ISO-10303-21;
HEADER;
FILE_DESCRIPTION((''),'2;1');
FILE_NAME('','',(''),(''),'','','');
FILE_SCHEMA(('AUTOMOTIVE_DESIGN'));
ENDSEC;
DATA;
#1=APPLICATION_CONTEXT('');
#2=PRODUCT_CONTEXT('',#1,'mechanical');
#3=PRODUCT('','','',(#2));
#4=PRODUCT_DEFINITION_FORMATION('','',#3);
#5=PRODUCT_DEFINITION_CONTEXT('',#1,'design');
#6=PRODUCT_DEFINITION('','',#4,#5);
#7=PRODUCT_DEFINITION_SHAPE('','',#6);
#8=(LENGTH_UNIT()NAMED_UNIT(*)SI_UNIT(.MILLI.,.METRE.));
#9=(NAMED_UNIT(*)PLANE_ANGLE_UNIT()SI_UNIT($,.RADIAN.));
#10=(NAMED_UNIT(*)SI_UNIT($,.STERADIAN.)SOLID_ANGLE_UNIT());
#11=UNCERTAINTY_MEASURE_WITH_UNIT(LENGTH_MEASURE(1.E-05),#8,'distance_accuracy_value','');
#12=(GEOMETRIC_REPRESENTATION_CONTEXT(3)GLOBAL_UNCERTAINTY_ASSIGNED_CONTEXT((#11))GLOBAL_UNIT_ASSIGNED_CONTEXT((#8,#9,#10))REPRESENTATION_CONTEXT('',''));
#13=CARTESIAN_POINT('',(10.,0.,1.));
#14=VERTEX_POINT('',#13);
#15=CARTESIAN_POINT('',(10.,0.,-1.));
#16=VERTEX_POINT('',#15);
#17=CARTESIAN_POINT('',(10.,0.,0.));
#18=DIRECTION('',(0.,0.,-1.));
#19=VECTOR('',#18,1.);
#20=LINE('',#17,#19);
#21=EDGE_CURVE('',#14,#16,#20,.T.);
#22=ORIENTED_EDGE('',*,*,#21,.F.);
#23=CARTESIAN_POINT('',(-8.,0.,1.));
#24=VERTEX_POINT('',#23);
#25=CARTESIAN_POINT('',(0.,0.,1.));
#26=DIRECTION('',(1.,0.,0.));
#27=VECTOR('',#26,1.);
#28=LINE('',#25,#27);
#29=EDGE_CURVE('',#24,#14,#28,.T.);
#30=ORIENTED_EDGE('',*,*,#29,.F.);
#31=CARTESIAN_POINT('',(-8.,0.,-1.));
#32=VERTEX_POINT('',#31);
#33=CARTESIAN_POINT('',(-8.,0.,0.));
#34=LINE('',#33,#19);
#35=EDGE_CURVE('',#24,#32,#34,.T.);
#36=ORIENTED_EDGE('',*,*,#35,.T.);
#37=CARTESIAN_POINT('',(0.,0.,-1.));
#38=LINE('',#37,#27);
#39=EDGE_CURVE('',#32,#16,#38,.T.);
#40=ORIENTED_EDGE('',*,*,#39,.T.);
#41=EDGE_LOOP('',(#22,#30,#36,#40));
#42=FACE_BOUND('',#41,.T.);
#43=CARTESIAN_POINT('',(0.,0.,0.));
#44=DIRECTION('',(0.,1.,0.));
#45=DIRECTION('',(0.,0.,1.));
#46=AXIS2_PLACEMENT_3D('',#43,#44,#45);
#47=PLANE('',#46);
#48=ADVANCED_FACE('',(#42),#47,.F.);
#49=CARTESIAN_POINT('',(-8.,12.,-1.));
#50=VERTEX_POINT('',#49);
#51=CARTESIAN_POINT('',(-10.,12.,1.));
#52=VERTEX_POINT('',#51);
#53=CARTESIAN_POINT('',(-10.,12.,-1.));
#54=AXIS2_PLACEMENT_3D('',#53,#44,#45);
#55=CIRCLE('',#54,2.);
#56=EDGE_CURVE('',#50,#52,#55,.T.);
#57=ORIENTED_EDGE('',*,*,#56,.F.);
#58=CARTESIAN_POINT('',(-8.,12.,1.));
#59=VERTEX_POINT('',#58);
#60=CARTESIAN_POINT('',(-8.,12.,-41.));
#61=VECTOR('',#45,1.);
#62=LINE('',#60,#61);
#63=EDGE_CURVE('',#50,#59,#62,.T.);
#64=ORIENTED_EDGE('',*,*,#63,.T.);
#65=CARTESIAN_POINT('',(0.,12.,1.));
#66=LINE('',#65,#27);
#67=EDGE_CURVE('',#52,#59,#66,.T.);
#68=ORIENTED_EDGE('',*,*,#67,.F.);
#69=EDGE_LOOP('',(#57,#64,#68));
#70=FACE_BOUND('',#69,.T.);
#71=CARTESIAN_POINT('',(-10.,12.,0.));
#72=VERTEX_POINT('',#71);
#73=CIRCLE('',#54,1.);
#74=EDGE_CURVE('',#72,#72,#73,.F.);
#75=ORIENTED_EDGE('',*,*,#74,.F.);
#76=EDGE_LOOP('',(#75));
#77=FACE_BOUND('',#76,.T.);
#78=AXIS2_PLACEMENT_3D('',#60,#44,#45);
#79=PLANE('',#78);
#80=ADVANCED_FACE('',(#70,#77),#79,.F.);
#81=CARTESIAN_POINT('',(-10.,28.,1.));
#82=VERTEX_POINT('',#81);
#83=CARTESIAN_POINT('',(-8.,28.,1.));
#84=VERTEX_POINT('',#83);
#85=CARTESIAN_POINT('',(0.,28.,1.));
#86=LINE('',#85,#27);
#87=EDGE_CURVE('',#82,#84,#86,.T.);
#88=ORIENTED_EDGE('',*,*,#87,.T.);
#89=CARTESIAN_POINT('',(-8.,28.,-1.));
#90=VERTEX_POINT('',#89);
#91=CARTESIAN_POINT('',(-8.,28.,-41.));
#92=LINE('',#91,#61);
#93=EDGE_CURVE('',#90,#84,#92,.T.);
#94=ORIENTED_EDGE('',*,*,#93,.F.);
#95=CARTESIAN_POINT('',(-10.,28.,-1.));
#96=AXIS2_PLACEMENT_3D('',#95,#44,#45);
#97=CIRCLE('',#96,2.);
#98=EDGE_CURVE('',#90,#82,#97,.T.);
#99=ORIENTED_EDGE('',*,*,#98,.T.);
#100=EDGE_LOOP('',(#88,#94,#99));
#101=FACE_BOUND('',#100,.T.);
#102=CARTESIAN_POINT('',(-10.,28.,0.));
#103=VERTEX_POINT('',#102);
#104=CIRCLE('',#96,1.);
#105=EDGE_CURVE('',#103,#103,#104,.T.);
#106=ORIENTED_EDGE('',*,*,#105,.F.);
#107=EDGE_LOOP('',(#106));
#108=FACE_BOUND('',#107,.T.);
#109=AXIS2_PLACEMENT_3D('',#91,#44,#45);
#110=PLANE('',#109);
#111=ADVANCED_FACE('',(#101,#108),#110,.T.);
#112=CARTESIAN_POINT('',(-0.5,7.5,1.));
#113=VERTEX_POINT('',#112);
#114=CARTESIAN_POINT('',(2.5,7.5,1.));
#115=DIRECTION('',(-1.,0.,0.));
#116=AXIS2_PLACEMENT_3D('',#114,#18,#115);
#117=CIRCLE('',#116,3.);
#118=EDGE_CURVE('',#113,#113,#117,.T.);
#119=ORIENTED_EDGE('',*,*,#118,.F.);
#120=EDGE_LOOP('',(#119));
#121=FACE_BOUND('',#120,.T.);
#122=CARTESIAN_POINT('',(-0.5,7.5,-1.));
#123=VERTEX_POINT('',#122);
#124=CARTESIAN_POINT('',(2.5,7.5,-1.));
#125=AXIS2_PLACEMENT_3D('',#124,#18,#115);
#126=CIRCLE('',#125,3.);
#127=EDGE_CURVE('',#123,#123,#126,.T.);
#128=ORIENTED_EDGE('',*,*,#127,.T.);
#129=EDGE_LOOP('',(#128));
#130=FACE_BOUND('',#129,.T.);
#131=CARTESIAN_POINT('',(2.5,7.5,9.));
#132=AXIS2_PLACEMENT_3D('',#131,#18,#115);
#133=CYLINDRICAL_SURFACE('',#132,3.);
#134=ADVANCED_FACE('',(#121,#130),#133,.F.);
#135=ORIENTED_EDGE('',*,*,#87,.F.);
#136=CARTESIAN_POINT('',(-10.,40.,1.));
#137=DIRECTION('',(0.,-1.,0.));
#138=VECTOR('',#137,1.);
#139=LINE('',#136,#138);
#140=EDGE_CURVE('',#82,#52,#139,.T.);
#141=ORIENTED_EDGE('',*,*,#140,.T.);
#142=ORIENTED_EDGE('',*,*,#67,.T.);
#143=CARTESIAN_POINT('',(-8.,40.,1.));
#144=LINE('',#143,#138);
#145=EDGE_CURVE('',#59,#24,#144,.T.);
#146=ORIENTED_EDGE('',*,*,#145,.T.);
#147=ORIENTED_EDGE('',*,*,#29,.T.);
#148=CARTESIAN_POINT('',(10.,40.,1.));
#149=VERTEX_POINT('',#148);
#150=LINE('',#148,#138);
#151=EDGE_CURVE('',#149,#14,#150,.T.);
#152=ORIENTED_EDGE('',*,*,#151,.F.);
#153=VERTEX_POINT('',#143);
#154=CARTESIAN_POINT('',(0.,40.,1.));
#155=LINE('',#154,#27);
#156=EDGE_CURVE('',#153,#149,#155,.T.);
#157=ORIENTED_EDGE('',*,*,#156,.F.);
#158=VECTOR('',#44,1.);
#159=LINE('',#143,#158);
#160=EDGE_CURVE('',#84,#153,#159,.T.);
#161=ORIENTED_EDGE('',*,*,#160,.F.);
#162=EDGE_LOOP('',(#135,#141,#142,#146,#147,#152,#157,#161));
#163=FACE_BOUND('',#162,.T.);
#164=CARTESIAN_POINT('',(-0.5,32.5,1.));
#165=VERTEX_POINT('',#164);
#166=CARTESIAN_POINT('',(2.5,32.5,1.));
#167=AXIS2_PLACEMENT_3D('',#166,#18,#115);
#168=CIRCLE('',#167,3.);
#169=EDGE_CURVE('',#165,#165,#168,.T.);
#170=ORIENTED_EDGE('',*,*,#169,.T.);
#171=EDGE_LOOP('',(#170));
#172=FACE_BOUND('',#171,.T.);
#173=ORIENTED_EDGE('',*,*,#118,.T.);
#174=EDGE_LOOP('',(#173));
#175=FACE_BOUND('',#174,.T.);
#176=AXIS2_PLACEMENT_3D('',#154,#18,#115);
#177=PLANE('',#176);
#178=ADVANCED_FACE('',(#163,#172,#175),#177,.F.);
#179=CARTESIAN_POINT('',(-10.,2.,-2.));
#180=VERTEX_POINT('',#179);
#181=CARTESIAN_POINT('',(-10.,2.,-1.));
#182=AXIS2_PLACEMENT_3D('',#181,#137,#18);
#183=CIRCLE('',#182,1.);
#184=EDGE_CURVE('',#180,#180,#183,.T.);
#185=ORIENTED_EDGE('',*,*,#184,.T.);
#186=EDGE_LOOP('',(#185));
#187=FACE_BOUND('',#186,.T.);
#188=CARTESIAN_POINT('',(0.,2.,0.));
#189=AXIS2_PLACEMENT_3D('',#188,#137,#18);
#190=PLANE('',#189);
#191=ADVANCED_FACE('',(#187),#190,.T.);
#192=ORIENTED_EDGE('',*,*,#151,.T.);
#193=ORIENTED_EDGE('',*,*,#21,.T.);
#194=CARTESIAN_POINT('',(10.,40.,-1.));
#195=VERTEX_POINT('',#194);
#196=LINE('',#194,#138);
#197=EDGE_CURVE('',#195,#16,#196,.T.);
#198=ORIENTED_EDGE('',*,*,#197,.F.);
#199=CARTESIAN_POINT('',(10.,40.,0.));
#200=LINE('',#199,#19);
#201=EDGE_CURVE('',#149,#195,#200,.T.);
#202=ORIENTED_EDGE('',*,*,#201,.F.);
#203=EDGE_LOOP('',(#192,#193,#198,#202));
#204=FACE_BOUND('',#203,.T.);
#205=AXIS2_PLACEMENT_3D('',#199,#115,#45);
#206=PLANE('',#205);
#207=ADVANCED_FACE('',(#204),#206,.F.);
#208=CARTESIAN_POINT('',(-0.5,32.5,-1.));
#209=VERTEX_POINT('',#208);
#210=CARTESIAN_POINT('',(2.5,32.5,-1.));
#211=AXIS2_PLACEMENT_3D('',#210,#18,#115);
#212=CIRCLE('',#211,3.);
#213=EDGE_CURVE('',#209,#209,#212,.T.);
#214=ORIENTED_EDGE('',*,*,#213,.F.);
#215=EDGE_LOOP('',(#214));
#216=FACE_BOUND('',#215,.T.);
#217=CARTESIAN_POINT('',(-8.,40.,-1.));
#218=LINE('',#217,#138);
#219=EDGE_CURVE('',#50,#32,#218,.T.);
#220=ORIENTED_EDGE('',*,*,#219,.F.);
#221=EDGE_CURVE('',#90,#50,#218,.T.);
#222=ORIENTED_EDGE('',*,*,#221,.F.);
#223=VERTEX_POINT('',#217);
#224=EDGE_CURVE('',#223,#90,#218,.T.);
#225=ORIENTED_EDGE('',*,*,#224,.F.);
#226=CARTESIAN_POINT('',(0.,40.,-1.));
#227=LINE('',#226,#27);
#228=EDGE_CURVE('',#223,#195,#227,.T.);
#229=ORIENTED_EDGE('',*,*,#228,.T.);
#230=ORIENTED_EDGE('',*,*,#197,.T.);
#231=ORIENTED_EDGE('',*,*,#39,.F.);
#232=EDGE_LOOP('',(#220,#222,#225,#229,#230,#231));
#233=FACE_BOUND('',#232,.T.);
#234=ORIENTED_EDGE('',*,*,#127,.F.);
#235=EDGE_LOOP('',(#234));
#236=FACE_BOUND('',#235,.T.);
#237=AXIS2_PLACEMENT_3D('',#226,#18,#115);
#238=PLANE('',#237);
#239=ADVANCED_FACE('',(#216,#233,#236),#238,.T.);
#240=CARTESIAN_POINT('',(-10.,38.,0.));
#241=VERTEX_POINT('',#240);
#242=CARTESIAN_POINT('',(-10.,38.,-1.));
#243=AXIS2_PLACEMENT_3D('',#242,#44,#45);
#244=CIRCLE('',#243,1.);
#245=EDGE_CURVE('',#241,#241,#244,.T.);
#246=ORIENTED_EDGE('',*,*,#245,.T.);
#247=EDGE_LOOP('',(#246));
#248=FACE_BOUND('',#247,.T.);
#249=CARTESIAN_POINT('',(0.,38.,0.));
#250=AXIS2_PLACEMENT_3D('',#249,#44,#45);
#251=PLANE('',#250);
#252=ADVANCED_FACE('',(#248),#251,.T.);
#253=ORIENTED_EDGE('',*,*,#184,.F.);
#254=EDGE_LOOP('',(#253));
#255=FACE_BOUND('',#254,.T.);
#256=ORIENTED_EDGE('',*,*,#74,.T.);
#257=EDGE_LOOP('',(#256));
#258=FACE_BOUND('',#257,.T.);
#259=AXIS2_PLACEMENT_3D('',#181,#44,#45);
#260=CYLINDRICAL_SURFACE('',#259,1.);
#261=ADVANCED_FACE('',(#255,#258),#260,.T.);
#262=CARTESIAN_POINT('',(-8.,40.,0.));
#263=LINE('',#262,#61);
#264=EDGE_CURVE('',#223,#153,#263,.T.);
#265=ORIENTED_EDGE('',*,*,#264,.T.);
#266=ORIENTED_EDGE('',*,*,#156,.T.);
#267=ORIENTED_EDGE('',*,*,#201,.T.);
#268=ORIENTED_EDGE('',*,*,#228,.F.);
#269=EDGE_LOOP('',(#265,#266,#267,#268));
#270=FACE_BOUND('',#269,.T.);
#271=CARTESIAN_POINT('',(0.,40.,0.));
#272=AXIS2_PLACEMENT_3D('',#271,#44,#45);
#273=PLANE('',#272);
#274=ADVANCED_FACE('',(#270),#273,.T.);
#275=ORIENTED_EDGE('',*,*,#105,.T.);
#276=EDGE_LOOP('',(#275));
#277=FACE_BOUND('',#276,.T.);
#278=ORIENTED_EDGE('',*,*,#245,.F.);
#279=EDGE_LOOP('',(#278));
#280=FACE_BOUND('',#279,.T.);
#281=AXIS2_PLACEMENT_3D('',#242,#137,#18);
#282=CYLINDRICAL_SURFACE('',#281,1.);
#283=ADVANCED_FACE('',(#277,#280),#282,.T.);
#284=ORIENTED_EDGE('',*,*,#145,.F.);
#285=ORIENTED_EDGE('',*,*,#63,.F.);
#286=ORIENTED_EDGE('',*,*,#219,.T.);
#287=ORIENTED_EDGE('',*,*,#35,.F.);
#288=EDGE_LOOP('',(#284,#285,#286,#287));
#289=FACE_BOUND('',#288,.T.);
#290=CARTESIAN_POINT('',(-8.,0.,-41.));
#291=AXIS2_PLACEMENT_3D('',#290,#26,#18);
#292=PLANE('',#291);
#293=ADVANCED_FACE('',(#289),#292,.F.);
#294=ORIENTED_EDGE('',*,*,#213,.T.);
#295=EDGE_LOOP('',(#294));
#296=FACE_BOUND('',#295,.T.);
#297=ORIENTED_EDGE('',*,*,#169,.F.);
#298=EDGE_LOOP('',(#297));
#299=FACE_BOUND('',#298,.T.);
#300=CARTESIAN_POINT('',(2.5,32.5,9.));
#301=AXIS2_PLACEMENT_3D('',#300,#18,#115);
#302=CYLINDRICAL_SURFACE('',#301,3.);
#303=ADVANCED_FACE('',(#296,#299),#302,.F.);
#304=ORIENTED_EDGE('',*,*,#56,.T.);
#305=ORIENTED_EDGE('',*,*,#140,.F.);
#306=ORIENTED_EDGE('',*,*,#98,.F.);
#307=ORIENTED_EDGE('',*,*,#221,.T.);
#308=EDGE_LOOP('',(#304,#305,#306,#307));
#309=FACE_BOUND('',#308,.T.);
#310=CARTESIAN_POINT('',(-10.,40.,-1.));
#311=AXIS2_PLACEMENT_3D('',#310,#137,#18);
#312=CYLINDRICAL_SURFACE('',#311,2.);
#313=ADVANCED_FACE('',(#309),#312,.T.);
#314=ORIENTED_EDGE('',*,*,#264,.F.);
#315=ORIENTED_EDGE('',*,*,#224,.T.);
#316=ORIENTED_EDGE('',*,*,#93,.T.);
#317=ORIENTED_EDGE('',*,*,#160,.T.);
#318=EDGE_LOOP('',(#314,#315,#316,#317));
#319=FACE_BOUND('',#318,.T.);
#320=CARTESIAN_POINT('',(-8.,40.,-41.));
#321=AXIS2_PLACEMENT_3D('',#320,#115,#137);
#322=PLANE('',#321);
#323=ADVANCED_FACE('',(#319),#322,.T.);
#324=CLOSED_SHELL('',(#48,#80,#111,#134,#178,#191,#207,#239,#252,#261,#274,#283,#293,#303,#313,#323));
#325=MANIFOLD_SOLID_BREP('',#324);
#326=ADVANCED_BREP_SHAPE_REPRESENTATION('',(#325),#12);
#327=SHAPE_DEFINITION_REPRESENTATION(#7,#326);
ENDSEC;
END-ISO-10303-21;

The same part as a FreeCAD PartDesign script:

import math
import FreeCAD as App
import Part
import Sketcher

doc = App.newDocument("Part")
body = doc.addObject("PartDesign::Body", "Body")

# Sketch on XZ plane
sketch1 = doc.addObject("Sketcher::SketchObject", "Sketch")
body.addObject(sketch1)
sketch1.AttachmentSupport = (doc.XZ_Plane, [""])
sketch1.MapMode = "FlatFace"
sketch1.addGeometry(Part.LineSegment(App.Vector(10, 1, 0), App.Vector(10, -1, 0)), False)
sketch1.addGeometry(Part.LineSegment(App.Vector(10, -1, 0), App.Vector(-8, -1, 0)), False)
sketch1.addGeometry(Part.ArcOfCircle(Part.Circle(App.Vector(-10, -1, 0), App.Vector(0, 0, 1), 2), math.radians(90), math.radians(360)), False)
sketch1.addGeometry(Part.LineSegment(App.Vector(-10, 1, 0), App.Vector(10, 1, 0)), False)
sketch1.addConstraint(Sketcher.Constraint("Coincident", 0, 2, 1, 1))
sketch1.addConstraint(Sketcher.Constraint("Coincident", 1, 2, 2, 2))
sketch1.addConstraint(Sketcher.Constraint("Tangent", 2, 1, 3, 1))
sketch1.addConstraint(Sketcher.Constraint("Coincident", 3, 2, 0, 1))
sketch1.addConstraint(Sketcher.Constraint("Vertical", 0))
sketch1.addConstraint(Sketcher.Constraint("Horizontal", 1))
sketch1.addConstraint(Sketcher.Constraint("Horizontal", 3))
sketch1.addConstraint(Sketcher.Constraint("Symmetric", 0, 2, 2, 1, -1, 1))
sketch1.addConstraint(Sketcher.Constraint("Horizontal", 2, 3, 0, 2))
sketch1.addConstraint(Sketcher.Constraint("Radius", 2, 2.0))
sketch1.addConstraint(Sketcher.Constraint("DistanceX", 1, 2, 1, 1, 18.0))
pad1 = doc.addObject("PartDesign::Pad", "Pad")
body.addObject(pad1)
pad1.Profile = sketch1
pad1.Length = 40
pad1.Reversed = True

# Sketch on XY plane
sketch2 = doc.addObject("Sketcher::SketchObject", "Sketch001")
body.addObject(sketch2)
sketch2.AttachmentSupport = (doc.XY_Plane, [""])
sketch2.MapMode = "FlatFace"
sketch2.AttachmentOffset = App.Placement(App.Vector(0, 0, -1), App.Rotation())
sketch2.addGeometry(Part.LineSegment(App.Vector(-8, 12, 0), App.Vector(-8, 0, 0)), False)
sketch2.addGeometry(Part.LineSegment(App.Vector(-8, 0, 0), App.Vector(-12, 0, 0)), False)
sketch2.addGeometry(Part.LineSegment(App.Vector(-12, 0, 0), App.Vector(-12, 12, 0)), False)
sketch2.addGeometry(Part.LineSegment(App.Vector(-12, 12, 0), App.Vector(-8, 12, 0)), False)
sketch2.addGeometry(Part.LineSegment(App.Vector(-8, 40, 0), App.Vector(-8, 28, 0)), False)
sketch2.addGeometry(Part.LineSegment(App.Vector(-8, 28, 0), App.Vector(-12, 28, 0)), False)
sketch2.addGeometry(Part.LineSegment(App.Vector(-12, 28, 0), App.Vector(-12, 40, 0)), False)
sketch2.addGeometry(Part.LineSegment(App.Vector(-12, 40, 0), App.Vector(-8, 40, 0)), False)
sketch2.addConstraint(Sketcher.Constraint("Coincident", 0, 2, 1, 1))
sketch2.addConstraint(Sketcher.Constraint("Coincident", 1, 2, 2, 1))
sketch2.addConstraint(Sketcher.Constraint("Coincident", 2, 2, 3, 1))
sketch2.addConstraint(Sketcher.Constraint("Coincident", 3, 2, 0, 1))
sketch2.addConstraint(Sketcher.Constraint("Coincident", 4, 2, 5, 1))
sketch2.addConstraint(Sketcher.Constraint("Coincident", 5, 2, 6, 1))
sketch2.addConstraint(Sketcher.Constraint("Coincident", 6, 2, 7, 1))
sketch2.addConstraint(Sketcher.Constraint("Coincident", 7, 2, 4, 1))
sketch2.addConstraint(Sketcher.Constraint("Vertical", 0))
sketch2.addConstraint(Sketcher.Constraint("Horizontal", 1))
sketch2.addConstraint(Sketcher.Constraint("Vertical", 2))
sketch2.addConstraint(Sketcher.Constraint("Horizontal", 3))
sketch2.addConstraint(Sketcher.Constraint("Vertical", 4))
sketch2.addConstraint(Sketcher.Constraint("Horizontal", 5))
sketch2.addConstraint(Sketcher.Constraint("Vertical", 6))
sketch2.addConstraint(Sketcher.Constraint("Horizontal", 7))
sketch2.addConstraint(Sketcher.Constraint("PointOnObject", 0, 2, -1))
sketch2.addConstraint(Sketcher.Constraint("Vertical", 3, 2, 4, 2))
sketch2.addConstraint(Sketcher.Constraint("Vertical", 2, 2, 5, 2))
sketch2.addConstraint(Sketcher.Constraint("Equal", 2, 4))
sketch2.addConstraint(Sketcher.Constraint("DistanceX", 1, 2, 1, 1, 4.0))
sketch2.addConstraint(Sketcher.Constraint("DistanceY", 0, 2, 0, 1, 12.0))
sketch2.addConstraint(Sketcher.Constraint("DistanceX", 0, 2, -1, 1, 8.0))
sketch2.addConstraint(Sketcher.Constraint("DistanceY", -1, 1, 4, 2, 28.0))
pocket1 = doc.addObject("PartDesign::Pocket", "Pocket")
body.addObject(pocket1)
pocket1.Profile = sketch2
pocket1.Type = "ThroughAll"
pocket1.Midplane = True

# Sketch on XZ plane
sketch3 = doc.addObject("Sketcher::SketchObject", "Sketch002")
body.addObject(sketch3)
sketch3.AttachmentSupport = (doc.XZ_Plane, [""])
sketch3.MapMode = "FlatFace"
sketch3.AttachmentOffset = App.Placement(App.Vector(0, 0, -12), App.Rotation())
sketch3.addGeometry(Part.Circle(App.Vector(-10, -1, 0), App.Vector(0, 0, 1), 1), False)
sketch3.addConstraint(Sketcher.Constraint("Diameter", 0, 2.0))
sketch3.addConstraint(Sketcher.Constraint("DistanceX", 0, 3, -1, 1, 10.0))
sketch3.addConstraint(Sketcher.Constraint("DistanceY", 0, 3, -1, 1, 1.0))
pad2 = doc.addObject("PartDesign::Pad", "Pad001")
body.addObject(pad2)
pad2.Profile = sketch3
pad2.Length = 10

# Sketch on XZ plane
sketch4 = doc.addObject("Sketcher::SketchObject", "Sketch003")
body.addObject(sketch4)
sketch4.AttachmentSupport = (doc.XZ_Plane, [""])
sketch4.MapMode = "FlatFace"
sketch4.AttachmentOffset = App.Placement(App.Vector(0, 0, -38), App.Rotation())
sketch4.addGeometry(Part.Circle(App.Vector(-10, -1, 0), App.Vector(0, 0, 1), 1), False)
sketch4.addConstraint(Sketcher.Constraint("Diameter", 0, 2.0))
sketch4.addConstraint(Sketcher.Constraint("DistanceX", 0, 3, -1, 1, 10.0))
sketch4.addConstraint(Sketcher.Constraint("DistanceY", 0, 3, -1, 1, 1.0))
pad3 = doc.addObject("PartDesign::Pad", "Pad002")
body.addObject(pad3)
pad3.Profile = sketch4
pad3.Length = 10

# Sketch on XY plane
sketch5 = doc.addObject("Sketcher::SketchObject", "Sketch004")
body.addObject(sketch5)
sketch5.AttachmentSupport = (doc.XY_Plane, [""])
sketch5.MapMode = "FlatFace"
sketch5.AttachmentOffset = App.Placement(App.Vector(0, 0, -1), App.Rotation())
sketch5.addGeometry(Part.ArcOfCircle(Part.Circle(App.Vector(2.5, 32.5, 0), App.Vector(0, 0, 1), 3), math.radians(90), math.radians(180)), False)
sketch5.addGeometry(Part.ArcOfCircle(Part.Circle(App.Vector(2.5, 32.5, 0), App.Vector(0, 0, 1), 3), math.radians(0), math.radians(90)), False)
sketch5.addGeometry(Part.ArcOfCircle(Part.Circle(App.Vector(2.5, 32.5, 0), App.Vector(0, 0, 1), 3), math.radians(180), math.radians(360)), False)
sketch5.addGeometry(Part.ArcOfCircle(Part.Circle(App.Vector(2.5, 7.5, 0), App.Vector(0, 0, 1), 3), math.radians(-90), math.radians(0)), False)
sketch5.addGeometry(Part.ArcOfCircle(Part.Circle(App.Vector(2.5, 7.5, 0), App.Vector(0, 0, 1), 3), math.radians(180), math.radians(270)), False)
sketch5.addGeometry(Part.ArcOfCircle(Part.Circle(App.Vector(2.5, 7.5, 0), App.Vector(0, 0, 1), 3), math.radians(0), math.radians(180)), False)
sketch5.addConstraint(Sketcher.Constraint("Tangent", 0, 1, 1, 2))
sketch5.addConstraint(Sketcher.Constraint("Tangent", 1, 1, 2, 2))
sketch5.addConstraint(Sketcher.Constraint("Tangent", 2, 1, 0, 2))
sketch5.addConstraint(Sketcher.Constraint("Tangent", 3, 1, 4, 2))
sketch5.addConstraint(Sketcher.Constraint("Tangent", 4, 1, 5, 2))
sketch5.addConstraint(Sketcher.Constraint("Tangent", 5, 1, 3, 2))
sketch5.addConstraint(Sketcher.Constraint("Equal", 2, 3))
sketch5.addConstraint(Sketcher.Constraint("Horizontal", 2, 3, 1, 1))
sketch5.addConstraint(Sketcher.Constraint("Horizontal", 1, 1, 2, 1))
sketch5.addConstraint(Sketcher.Constraint("Horizontal", 5, 3, 4, 1))
sketch5.addConstraint(Sketcher.Constraint("Horizontal", 4, 1, 5, 1))
sketch5.addConstraint(Sketcher.Constraint("Vertical", 2, 3, 3, 3))
sketch5.addConstraint(Sketcher.Constraint("Vertical", 5, 3, 0, 1))
sketch5.addConstraint(Sketcher.Constraint("Vertical", 0, 1, 3, 1))
sketch5.addConstraint(Sketcher.Constraint("Radius", 0, 3.0))
sketch5.addConstraint(Sketcher.Constraint("DistanceY", 3, 3, 2, 3, 25.0))
sketch5.addConstraint(Sketcher.Constraint("DistanceX", -1, 1, 0, 3, 2.5))
sketch5.addConstraint(Sketcher.Constraint("DistanceY", -1, 1, 0, 3, 32.5))
pocket2 = doc.addObject("PartDesign::Pocket", "Pocket001")
body.addObject(pocket2)
pocket2.Profile = sketch5
pocket2.Length = 10
pocket2.Reversed = True

doc.recompute()
